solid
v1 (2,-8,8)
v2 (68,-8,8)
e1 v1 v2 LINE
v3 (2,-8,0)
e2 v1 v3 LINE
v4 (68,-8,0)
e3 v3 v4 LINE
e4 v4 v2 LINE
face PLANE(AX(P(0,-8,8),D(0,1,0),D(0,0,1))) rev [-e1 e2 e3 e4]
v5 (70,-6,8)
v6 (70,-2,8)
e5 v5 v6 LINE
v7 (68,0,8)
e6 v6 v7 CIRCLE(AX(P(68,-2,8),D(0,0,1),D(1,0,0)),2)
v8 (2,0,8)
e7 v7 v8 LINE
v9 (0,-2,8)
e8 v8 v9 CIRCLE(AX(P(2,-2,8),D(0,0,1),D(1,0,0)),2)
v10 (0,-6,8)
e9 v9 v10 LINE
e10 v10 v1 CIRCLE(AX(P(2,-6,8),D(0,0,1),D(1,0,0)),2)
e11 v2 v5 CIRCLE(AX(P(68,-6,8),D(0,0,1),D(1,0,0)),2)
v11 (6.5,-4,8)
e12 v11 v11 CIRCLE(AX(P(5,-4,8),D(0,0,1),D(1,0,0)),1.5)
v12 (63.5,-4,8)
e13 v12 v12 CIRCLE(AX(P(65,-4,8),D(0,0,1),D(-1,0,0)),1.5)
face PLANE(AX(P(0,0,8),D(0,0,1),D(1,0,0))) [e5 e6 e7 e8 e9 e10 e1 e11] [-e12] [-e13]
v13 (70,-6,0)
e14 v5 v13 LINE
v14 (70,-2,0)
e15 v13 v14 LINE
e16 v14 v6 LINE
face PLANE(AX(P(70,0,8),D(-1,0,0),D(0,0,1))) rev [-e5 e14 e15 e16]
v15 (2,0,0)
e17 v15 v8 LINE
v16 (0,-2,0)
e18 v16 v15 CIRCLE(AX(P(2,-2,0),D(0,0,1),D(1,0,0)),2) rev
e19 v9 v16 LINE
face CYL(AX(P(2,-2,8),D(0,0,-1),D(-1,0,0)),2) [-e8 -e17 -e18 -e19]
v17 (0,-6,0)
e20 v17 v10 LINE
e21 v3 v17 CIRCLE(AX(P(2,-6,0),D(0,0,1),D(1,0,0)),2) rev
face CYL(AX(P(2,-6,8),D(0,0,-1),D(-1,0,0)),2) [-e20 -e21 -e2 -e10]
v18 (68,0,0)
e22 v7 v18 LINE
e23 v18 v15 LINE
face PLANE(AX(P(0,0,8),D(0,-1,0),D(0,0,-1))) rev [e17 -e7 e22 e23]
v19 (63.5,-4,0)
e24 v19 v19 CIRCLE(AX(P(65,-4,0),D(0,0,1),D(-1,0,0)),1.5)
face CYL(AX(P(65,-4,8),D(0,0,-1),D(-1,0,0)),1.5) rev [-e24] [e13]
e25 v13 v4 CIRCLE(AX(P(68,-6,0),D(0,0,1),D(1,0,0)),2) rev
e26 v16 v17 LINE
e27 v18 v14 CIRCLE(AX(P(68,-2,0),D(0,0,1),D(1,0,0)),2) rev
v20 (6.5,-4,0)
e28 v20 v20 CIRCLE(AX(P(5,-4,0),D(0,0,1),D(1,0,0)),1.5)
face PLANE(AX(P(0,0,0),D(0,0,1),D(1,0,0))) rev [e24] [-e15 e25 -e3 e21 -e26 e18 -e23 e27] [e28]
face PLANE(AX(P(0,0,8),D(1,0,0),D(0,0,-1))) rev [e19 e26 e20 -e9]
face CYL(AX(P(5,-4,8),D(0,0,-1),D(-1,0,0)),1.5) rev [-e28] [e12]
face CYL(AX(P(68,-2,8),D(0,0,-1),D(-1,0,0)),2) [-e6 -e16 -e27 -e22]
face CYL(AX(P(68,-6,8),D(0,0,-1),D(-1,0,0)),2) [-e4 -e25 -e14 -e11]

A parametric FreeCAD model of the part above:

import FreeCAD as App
import Part
import Sketcher
from FreeCAD import Vector


def edges_at(feature, points):
    """Names of the edges that pass closest to the given points."""
    edges = feature.Shape.Edges
    near = lambda p: min(range(len(edges)), key=lambda i: edges[i].distToShape(Part.Vertex(*p))[0])
    return sorted({f"Edge{near(p) + 1}" for p in points})


def add_polygon(sketch, points):
    """Adds a closed chain of lines whose ends are joined by coincident constraints."""
    first, n = sketch.GeometryCount, len(points)
    for a, b in zip(points, points[1:] + points[:1]):
        sketch.addGeometry(Part.LineSegment(App.Vector(*a, 0), App.Vector(*b, 0)), False)
    for i in range(n):
        sketch.addConstraint(Sketcher.Constraint("Coincident", first + i, 2, first + (i + 1) % n, 1))

doc = App.newDocument("Part")
body = doc.addObject("PartDesign::Body", "Body")

# Sketch on XY plane
sketch1 = body.newObject("Sketcher::SketchObject", "Sketch")
sketch1.AttachmentSupport = (doc.getObject("XY_Plane"), [""])
sketch1.MapMode = "FlatFace"
add_polygon(sketch1, [(0, 0), (0, -8), (70, -8), (70, 0)])  # lines 0-3
sketch1.addGeometry(Part.Circle(Vector(5, -4, 0), Vector(0, 0, 1), 1.5), False)  # 4
sketch1.addGeometry(Part.Circle(Vector(65, -4, 0), Vector(0, 0, 1), 1.5), False)  # 5
sketch1.addConstraint([
    Sketcher.Constraint("Vertical", 0),
    Sketcher.Constraint("Horizontal", 1),
    Sketcher.Constraint("Vertical", 2),
    Sketcher.Constraint("Horizontal", 3),
    Sketcher.Constraint("Coincident", 3, 2, -1, 1),
    Sketcher.Constraint("Equal", 4, 5),
    Sketcher.Constraint("Horizontal", 4, 3, 5, 3),
    Sketcher.Constraint("Diameter", 4, 3.0),
    Sketcher.Constraint("DistanceX", 1, 1, 1, 2, 70.0),
    Sketcher.Constraint("DistanceY", 0, 2, 0, 1, 8.0),
    Sketcher.Constraint("DistanceX", -1, 1, 4, 3, 5.0),
    Sketcher.Constraint("DistanceY", 4, 3, -1, 1, 4.0),
    Sketcher.Constraint("DistanceX", -1, 1, 5, 3, 65.0),
])
pad1 = body.newObject("PartDesign::Pad", "Pad")
pad1.Profile = sketch1
pad1.Length = 8
doc.recompute()

fillet = body.newObject("PartDesign::Fillet", "Fillet")
fillet.Base = (pad1, edges_at(pad1, [
    (0, 0, 4),
    (70, 0, 4),
    (70, -8, 4),
    (0, -8, 4),
]))
fillet.Radius = 2

doc.recompute()
